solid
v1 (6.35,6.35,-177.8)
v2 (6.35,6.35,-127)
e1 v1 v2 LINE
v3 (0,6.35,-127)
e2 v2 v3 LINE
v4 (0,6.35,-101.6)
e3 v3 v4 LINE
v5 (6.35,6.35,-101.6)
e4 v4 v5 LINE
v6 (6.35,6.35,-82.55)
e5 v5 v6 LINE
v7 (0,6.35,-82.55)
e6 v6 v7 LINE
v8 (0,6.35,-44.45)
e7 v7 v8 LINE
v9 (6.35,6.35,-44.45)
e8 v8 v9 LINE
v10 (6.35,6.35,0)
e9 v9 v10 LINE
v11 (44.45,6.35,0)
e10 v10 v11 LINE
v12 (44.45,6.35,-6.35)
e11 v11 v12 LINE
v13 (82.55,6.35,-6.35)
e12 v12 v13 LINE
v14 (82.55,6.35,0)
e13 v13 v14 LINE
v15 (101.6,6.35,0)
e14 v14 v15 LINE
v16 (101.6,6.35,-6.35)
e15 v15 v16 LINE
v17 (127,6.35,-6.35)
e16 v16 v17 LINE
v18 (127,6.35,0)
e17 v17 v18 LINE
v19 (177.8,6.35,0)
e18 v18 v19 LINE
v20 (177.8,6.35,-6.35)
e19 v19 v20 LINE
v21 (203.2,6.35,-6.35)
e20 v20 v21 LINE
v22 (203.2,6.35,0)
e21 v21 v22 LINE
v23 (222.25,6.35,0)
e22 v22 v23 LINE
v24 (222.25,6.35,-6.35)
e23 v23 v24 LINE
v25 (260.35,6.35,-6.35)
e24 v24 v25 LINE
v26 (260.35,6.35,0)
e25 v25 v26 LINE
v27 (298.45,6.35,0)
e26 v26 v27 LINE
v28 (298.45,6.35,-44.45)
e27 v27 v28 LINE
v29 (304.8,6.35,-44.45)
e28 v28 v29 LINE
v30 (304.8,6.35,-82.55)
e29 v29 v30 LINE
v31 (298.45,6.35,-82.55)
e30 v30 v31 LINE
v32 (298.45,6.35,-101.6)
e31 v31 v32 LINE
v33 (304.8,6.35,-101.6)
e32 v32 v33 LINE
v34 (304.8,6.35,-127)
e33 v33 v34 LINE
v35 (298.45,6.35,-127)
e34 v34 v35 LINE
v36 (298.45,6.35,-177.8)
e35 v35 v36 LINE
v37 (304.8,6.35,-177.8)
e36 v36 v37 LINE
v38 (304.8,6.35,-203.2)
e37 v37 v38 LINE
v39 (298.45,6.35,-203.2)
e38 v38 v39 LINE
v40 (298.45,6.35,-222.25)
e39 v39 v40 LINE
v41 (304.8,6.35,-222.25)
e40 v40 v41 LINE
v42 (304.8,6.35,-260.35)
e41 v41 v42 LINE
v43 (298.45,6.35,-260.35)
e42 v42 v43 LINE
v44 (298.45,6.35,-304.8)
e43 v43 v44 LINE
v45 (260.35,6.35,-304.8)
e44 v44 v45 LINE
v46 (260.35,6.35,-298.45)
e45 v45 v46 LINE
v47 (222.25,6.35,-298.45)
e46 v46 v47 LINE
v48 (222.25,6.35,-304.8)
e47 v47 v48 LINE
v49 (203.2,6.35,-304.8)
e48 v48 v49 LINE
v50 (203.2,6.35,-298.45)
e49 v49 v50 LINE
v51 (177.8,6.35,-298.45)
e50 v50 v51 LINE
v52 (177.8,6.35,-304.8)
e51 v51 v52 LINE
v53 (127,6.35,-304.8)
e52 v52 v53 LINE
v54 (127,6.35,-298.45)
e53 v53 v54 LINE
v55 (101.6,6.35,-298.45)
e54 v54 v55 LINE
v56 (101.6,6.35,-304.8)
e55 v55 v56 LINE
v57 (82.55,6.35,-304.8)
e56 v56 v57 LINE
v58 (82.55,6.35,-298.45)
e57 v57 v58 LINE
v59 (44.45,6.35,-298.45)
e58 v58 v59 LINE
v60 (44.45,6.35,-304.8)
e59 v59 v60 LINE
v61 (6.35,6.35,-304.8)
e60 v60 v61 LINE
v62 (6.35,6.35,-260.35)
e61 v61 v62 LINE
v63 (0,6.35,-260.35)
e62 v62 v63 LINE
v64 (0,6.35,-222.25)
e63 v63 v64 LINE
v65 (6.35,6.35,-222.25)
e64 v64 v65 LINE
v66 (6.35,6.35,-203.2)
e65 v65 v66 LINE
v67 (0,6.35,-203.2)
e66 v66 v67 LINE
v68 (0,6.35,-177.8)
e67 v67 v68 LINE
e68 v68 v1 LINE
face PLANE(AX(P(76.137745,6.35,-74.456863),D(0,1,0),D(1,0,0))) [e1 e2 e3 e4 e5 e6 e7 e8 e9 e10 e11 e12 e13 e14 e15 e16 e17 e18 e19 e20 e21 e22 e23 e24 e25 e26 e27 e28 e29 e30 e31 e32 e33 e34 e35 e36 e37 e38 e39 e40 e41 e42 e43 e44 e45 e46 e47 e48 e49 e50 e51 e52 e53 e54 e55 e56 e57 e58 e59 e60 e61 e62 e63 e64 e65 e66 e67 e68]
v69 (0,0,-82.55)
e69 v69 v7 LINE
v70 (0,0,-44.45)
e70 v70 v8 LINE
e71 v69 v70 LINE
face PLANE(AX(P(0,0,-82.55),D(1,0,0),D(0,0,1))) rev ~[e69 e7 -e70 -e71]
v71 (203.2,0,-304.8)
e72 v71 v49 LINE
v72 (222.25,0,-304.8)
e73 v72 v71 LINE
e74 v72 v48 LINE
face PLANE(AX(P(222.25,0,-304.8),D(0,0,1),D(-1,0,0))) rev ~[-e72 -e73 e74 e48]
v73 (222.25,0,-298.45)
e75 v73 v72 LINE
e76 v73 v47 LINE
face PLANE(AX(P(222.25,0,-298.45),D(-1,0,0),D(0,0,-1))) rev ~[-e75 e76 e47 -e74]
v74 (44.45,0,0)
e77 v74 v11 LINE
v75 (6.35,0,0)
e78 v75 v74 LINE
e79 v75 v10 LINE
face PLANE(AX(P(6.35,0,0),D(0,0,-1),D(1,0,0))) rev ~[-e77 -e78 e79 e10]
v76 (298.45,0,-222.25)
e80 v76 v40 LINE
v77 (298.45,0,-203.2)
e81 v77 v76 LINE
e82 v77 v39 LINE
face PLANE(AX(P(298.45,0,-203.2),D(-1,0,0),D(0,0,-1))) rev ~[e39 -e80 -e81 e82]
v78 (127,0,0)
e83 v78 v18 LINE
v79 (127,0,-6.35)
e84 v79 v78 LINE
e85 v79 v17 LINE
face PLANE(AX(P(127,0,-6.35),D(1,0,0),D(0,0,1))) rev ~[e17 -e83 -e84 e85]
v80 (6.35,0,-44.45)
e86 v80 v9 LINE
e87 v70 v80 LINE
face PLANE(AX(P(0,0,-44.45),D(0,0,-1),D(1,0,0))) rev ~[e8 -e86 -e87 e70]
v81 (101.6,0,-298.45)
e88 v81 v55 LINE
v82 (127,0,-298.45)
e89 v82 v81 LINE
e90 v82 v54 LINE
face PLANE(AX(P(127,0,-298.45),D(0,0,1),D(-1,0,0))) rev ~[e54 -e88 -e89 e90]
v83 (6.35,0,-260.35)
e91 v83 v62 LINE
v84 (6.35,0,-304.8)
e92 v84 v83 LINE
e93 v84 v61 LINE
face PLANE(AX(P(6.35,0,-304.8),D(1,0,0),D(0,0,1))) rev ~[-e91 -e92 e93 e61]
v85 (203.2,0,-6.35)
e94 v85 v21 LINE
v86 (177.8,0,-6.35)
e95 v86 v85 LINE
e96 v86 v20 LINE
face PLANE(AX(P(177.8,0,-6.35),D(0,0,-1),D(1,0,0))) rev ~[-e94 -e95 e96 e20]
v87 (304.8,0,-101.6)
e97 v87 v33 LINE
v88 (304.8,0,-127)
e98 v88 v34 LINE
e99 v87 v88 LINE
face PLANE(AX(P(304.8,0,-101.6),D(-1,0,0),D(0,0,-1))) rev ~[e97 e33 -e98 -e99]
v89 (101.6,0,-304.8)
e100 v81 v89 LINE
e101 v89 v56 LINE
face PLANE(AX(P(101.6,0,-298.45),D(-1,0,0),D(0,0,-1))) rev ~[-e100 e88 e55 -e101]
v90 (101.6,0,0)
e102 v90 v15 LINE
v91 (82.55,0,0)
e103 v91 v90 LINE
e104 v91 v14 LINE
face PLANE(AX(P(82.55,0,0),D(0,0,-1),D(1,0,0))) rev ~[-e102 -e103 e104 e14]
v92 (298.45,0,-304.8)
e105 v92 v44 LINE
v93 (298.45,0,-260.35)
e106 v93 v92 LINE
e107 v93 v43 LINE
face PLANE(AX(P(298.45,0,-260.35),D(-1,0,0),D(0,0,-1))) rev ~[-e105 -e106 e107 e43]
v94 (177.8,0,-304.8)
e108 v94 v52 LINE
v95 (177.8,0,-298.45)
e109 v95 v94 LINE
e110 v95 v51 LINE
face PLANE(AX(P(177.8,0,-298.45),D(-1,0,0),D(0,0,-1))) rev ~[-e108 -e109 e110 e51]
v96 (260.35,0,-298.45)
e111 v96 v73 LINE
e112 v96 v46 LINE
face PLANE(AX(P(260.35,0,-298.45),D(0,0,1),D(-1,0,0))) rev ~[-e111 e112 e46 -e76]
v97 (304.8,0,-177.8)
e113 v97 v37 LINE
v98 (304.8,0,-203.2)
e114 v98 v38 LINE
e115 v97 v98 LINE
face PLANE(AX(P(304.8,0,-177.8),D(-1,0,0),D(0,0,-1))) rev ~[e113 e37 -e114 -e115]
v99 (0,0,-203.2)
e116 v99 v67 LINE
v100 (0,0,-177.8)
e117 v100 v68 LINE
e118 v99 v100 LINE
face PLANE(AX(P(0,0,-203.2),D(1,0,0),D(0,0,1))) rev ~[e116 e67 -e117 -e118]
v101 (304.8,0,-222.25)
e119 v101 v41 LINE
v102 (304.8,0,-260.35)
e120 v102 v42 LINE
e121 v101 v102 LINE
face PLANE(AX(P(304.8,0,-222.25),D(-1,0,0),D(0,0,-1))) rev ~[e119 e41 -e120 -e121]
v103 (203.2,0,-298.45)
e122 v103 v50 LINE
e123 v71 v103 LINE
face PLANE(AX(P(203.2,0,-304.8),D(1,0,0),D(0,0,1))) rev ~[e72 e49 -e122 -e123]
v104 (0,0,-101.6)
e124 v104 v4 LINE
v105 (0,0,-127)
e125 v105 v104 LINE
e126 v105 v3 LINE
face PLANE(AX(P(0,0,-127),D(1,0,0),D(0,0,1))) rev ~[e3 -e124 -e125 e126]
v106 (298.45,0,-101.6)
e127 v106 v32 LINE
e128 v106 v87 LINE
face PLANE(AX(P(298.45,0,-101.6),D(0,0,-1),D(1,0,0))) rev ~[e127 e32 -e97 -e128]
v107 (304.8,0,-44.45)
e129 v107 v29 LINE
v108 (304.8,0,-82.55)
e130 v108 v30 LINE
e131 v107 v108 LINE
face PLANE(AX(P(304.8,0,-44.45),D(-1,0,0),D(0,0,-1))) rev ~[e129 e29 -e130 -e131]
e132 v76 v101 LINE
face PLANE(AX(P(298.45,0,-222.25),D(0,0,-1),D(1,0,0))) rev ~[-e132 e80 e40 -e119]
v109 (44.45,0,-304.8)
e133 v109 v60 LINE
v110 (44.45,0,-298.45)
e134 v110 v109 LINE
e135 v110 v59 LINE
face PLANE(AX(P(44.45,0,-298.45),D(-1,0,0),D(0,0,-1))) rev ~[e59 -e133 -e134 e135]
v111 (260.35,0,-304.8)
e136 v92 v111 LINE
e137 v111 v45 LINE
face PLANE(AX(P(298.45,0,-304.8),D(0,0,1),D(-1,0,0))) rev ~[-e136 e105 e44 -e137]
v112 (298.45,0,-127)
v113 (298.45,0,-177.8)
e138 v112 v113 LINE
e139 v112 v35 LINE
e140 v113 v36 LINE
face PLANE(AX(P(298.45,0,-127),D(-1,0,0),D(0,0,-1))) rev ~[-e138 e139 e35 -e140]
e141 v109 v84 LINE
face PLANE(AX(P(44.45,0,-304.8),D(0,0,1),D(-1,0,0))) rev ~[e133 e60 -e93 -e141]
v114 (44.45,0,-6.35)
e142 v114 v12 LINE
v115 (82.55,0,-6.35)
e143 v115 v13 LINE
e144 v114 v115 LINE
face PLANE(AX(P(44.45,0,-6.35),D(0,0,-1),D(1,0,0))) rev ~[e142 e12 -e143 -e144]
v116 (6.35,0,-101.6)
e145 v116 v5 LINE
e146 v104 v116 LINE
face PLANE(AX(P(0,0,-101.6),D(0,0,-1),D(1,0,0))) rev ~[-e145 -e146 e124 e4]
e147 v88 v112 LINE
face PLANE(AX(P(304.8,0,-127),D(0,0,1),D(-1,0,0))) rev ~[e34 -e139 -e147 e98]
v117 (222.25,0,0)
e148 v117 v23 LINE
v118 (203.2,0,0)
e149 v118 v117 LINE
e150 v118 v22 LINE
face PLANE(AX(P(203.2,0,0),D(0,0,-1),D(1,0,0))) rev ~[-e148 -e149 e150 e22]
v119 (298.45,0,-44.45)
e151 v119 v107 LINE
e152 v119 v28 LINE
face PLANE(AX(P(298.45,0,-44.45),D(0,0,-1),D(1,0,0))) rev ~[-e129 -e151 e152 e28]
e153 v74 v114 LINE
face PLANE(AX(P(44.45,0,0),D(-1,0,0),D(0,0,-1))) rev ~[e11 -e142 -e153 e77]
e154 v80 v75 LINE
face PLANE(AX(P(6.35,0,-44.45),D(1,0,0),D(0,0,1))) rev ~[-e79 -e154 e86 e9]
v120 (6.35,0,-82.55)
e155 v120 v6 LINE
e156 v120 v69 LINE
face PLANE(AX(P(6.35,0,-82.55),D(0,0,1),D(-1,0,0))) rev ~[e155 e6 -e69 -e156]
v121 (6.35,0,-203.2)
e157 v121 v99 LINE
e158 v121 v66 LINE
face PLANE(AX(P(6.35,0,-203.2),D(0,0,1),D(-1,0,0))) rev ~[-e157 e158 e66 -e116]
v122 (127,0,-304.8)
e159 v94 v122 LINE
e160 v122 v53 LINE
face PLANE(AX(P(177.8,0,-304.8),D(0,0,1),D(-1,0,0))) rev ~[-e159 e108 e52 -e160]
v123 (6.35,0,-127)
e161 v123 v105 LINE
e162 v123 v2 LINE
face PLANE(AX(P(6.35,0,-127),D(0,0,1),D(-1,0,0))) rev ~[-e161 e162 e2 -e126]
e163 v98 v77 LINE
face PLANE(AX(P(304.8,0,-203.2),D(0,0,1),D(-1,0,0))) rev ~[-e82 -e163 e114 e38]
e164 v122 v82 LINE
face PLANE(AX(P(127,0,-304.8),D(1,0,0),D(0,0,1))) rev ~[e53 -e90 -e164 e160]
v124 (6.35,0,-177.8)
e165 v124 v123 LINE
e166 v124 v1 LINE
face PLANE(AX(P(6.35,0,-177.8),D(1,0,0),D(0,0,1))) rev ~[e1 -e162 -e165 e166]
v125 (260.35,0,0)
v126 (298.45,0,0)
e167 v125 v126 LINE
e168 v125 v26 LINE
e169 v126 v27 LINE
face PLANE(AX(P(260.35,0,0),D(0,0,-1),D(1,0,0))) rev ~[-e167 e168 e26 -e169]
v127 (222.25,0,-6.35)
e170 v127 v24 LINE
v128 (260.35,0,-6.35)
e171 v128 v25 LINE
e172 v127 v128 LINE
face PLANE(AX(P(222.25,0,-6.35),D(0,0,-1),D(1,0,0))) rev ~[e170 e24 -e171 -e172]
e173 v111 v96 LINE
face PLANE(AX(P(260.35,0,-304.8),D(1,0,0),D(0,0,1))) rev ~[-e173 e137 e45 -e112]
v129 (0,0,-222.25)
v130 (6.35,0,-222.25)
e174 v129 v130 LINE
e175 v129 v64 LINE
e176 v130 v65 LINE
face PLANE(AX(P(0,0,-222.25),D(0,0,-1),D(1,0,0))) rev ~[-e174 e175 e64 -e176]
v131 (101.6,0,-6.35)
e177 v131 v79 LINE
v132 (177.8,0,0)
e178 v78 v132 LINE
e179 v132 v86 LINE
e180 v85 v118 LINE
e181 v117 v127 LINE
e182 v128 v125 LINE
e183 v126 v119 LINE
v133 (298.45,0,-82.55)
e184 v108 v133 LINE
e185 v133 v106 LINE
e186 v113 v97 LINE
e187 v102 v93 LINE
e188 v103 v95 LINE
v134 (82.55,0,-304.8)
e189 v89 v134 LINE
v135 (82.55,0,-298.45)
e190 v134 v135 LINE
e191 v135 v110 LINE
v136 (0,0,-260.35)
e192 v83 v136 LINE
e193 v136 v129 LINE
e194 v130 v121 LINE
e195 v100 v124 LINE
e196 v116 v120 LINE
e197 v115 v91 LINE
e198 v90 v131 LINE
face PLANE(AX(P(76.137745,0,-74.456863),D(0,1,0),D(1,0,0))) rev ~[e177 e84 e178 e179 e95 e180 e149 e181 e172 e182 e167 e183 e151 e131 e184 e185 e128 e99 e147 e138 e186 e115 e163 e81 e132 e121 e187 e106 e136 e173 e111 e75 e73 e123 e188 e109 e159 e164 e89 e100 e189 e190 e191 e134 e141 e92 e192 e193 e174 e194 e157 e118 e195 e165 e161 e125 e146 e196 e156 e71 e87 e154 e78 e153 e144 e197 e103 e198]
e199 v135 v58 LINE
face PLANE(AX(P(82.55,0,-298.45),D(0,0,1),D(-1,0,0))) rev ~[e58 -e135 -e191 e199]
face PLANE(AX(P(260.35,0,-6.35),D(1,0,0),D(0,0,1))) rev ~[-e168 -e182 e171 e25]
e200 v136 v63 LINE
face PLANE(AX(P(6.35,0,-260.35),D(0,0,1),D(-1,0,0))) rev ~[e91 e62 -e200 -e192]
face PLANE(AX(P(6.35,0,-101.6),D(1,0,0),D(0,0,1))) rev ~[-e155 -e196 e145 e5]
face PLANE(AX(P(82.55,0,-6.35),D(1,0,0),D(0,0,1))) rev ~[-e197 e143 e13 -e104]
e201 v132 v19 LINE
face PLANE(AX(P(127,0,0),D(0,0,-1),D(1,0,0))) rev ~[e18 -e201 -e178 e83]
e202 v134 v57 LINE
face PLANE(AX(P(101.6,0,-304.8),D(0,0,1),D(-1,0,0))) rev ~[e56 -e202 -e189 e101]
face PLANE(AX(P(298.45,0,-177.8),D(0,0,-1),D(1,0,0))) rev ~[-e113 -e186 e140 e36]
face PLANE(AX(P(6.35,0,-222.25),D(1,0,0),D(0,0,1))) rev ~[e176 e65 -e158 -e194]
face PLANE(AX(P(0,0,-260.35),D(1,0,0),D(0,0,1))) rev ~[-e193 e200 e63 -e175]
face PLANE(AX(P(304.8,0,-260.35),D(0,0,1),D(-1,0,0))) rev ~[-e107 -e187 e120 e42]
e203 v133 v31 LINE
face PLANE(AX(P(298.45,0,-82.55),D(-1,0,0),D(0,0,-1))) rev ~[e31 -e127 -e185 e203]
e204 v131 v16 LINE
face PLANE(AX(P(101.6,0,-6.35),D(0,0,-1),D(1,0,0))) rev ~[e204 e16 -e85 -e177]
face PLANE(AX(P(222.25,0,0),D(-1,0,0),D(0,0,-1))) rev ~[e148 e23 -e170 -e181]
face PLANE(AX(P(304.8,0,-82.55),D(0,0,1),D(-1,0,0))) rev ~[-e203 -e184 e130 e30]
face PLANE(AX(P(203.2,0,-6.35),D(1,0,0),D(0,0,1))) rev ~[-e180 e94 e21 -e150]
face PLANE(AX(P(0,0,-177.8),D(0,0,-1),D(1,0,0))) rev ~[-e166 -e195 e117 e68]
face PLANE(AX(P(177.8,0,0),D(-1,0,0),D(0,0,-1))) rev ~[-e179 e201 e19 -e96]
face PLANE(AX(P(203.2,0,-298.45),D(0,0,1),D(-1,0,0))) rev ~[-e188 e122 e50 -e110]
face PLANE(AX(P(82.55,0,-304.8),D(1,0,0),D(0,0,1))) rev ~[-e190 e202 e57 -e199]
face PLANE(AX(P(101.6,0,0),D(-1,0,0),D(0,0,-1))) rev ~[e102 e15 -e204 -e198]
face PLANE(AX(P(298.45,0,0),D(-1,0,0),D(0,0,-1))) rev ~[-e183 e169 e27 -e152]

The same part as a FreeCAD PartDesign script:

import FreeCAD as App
import Part
import Sketcher
from FreeCAD import Vector
Q = App.Units.Quantity


def add_polygon(sketch, points):
    """Adds a closed chain of lines whose ends are joined by coincident constraints."""
    first, n = sketch.GeometryCount, len(points)
    for a, b in zip(points, points[1:] + points[:1]):
        sketch.addGeometry(Part.LineSegment(App.Vector(*a, 0), App.Vector(*b, 0)), False)
    for i in range(n):
        sketch.addConstraint(Sketcher.Constraint("Coincident", first + i, 2, first + (i + 1) % n, 1))

doc = App.newDocument("Part")
body = doc.addObject("PartDesign::Body", "Body")

# Sketch on XZ plane
sketch1 = body.newObject("Sketcher::SketchObject", "Sketch")
sketch1.AttachmentSupport = (doc.getObject("XZ_Plane"), [""])
sketch1.MapMode = "FlatFace"
add_polygon(sketch1, [(6, -127), (0, -127), (0, -102), (6, -102), (6, -83), (0, -83), (0, -44), (6, -44), (6, 0), (44, 0), (44, -6), (83, -6), (83, 0), (102, 0), (102, -6), (127, -6), (127, 0), (178, 0), (178, -6), (203, -6), (203, 0), (222, 0), (222, -6), (260, -6), (260, 0), (298, 0), (298, -44), (305, -44), (305, -83), (298, -83), (298, -102), (305, -102), (305, -127), (298, -127), (298, -178), (305, -178), (305, -203), (298, -203), (298, -222), (305, -222), (305, -260), (298, -260), (298, -305), (260, -305), (260, -298), (222, -298), (222, -305), (203, -305), (203, -298), (178, -298), (178, -305), (127, -305), (127, -298), (102, -298), (102, -305), (83, -305), (83, -298), (44, -298), (44, -305), (6, -305), (6, -260), (0, -260), (0, -222), (6, -222), (6, -203), (0, -203), (0, -178), (6, -178)])  # lines 0-67
sketch1.addConstraint(Sketcher.Constraint("Horizontal", 0))
sketch1.addConstraint(Sketcher.Constraint("Vertical", 1))
sketch1.addConstraint(Sketcher.Constraint("Horizontal", 2))
sketch1.addConstraint(Sketcher.Constraint("Vertical", 3))
sketch1.addConstraint(Sketcher.Constraint("Horizontal", 4))
sketch1.addConstraint(Sketcher.Constraint("Vertical", 5))
sketch1.addConstraint(Sketcher.Constraint("Horizontal", 6))
sketch1.addConstraint(Sketcher.Constraint("Vertical", 7))
sketch1.addConstraint(Sketcher.Constraint("Horizontal", 8))
sketch1.addConstraint(Sketcher.Constraint("Vertical", 9))
sketch1.addConstraint(Sketcher.Constraint("Horizontal", 10))
sketch1.addConstraint(Sketcher.Constraint("Vertical", 11))
sketch1.addConstraint(Sketcher.Constraint("Horizontal", 12))
sketch1.addConstraint(Sketcher.Constraint("Vertical", 13))
sketch1.addConstraint(Sketcher.Constraint("Horizontal", 14))
sketch1.addConstraint(Sketcher.Constraint("Vertical", 15))
sketch1.addConstraint(Sketcher.Constraint("Horizontal", 16))
sketch1.addConstraint(Sketcher.Constraint("Vertical", 17))
sketch1.addConstraint(Sketcher.Constraint("Horizontal", 18))
sketch1.addConstraint(Sketcher.Constraint("Vertical", 19))
sketch1.addConstraint(Sketcher.Constraint("Horizontal", 20))
sketch1.addConstraint(Sketcher.Constraint("Vertical", 21))
sketch1.addConstraint(Sketcher.Constraint("Horizontal", 22))
sketch1.addConstraint(Sketcher.Constraint("Vertical", 23))
sketch1.addConstraint(Sketcher.Constraint("Horizontal", 24))
sketch1.addConstraint(Sketcher.Constraint("Vertical", 25))
sketch1.addConstraint(Sketcher.Constraint("Horizontal", 26))
sketch1.addConstraint(Sketcher.Constraint("Vertical", 27))
sketch1.addConstraint(Sketcher.Constraint("Horizontal", 28))
sketch1.addConstraint(Sketcher.Constraint("Vertical", 29))
sketch1.addConstraint(Sketcher.Constraint("Horizontal", 30))
sketch1.addConstraint(Sketcher.Constraint("Vertical", 31))
sketch1.addConstraint(Sketcher.Constraint("Horizontal", 32))
sketch1.addConstraint(Sketcher.Constraint("Vertical", 33))
sketch1.addConstraint(Sketcher.Constraint("Horizontal", 34))
sketch1.addConstraint(Sketcher.Constraint("Vertical", 35))
sketch1.addConstraint(Sketcher.Constraint("Horizontal", 36))
sketch1.addConstraint(Sketcher.Constraint("Vertical", 37))
sketch1.addConstraint(Sketcher.Constraint("Horizontal", 38))
sketch1.addConstraint(Sketcher.Constraint("Vertical", 39))
sketch1.addConstraint(Sketcher.Constraint("Horizontal", 40))
sketch1.addConstraint(Sketcher.Constraint("Vertical", 41))
sketch1.addConstraint(Sketcher.Constraint("Horizontal", 42))
sketch1.addConstraint(Sketcher.Constraint("Vertical", 43))
sketch1.addConstraint(Sketcher.Constraint("Horizontal", 44))
sketch1.addConstraint(Sketcher.Constraint("Vertical", 45))
sketch1.addConstraint(Sketcher.Constraint("Horizontal", 46))
sketch1.addConstraint(Sketcher.Constraint("Vertical", 47))
sketch1.addConstraint(Sketcher.Constraint("Horizontal", 48))
sketch1.addConstraint(Sketcher.Constraint("Vertical", 49))
sketch1.addConstraint(Sketcher.Constraint("Horizontal", 50))
sketch1.addConstraint(Sketcher.Constraint("Vertical", 51))
sketch1.addConstraint(Sketcher.Constraint("Horizontal", 52))
sketch1.addConstraint(Sketcher.Constraint("Vertical", 53))
sketch1.addConstraint(Sketcher.Constraint("Horizontal", 54))
sketch1.addConstraint(Sketcher.Constraint("Vertical", 55))
sketch1.addConstraint(Sketcher.Constraint("Horizontal", 56))
sketch1.addConstraint(Sketcher.Constraint("Vertical", 57))
sketch1.addConstraint(Sketcher.Constraint("Horizontal", 58))
sketch1.addConstraint(Sketcher.Constraint("Vertical", 59))
sketch1.addConstraint(Sketcher.Constraint("Horizontal", 60))
sketch1.addConstraint(Sketcher.Constraint("Vertical", 61))
sketch1.addConstraint(Sketcher.Constraint("Horizontal", 62))
sketch1.addConstraint(Sketcher.Constraint("Vertical", 63))
sketch1.addConstraint(Sketcher.Constraint("Horizontal", 64))
sketch1.addConstraint(Sketcher.Constraint("Vertical", 65))
sketch1.addConstraint(Sketcher.Constraint("Horizontal", 66))
sketch1.addConstraint(Sketcher.Constraint("Vertical", 67))
sketch1.addConstraint(Sketcher.Constraint("PointOnObject", 0, 2, -2))
sketch1.addConstraint(Sketcher.Constraint("PointOnObject", 4, 2, -2))
sketch1.addConstraint(Sketcher.Constraint("PointOnObject", 7, 2, -1))
sketch1.addConstraint(Sketcher.Constraint("PointOnObject", 11, 2, -1))
sketch1.addConstraint(Sketcher.Constraint("PointOnObject", 15, 2, -1))
sketch1.addConstraint(Sketcher.Constraint("PointOnObject", 19, 2, -1))
sketch1.addConstraint(Sketcher.Constraint("PointOnObject", 23, 2, -1))
sketch1.addConstraint(Sketcher.Constraint("PointOnObject", 60, 2, -2))
sketch1.addConstraint(Sketcher.Constraint("PointOnObject", 64, 2, -2))
sketch1.addConstraint(Sketcher.Constraint("Horizontal", 10, 2, 13, 2))
sketch1.addConstraint(Sketcher.Constraint("Horizontal", 14, 2, 17, 2))
sketch1.addConstraint(Sketcher.Constraint("Horizontal", 18, 2, 21, 2))
sketch1.addConstraint(Sketcher.Constraint("Horizontal", 6, 2, 25, 2))
sketch1.addConstraint(Sketcher.Constraint("Horizontal", 4, 2, 27, 2))
sketch1.addConstraint(Sketcher.Constraint("Horizontal", 2, 2, 29, 2))
sketch1.addConstraint(Sketcher.Constraint("Horizontal", 0, 2, 31, 2))
sketch1.addConstraint(Sketcher.Constraint("Horizontal", 42, 2, 45, 2))
sketch1.addConstraint(Sketcher.Constraint("Horizontal", 44, 2, 47, 2))
sketch1.addConstraint(Sketcher.Constraint("Horizontal", 46, 2, 49, 2))
sketch1.addConstraint(Sketcher.Constraint("Horizontal", 48, 2, 51, 2))
sketch1.addConstraint(Sketcher.Constraint("Horizontal", 50, 2, 53, 2))
sketch1.addConstraint(Sketcher.Constraint("Horizontal", 52, 2, 55, 2))
sketch1.addConstraint(Sketcher.Constraint("Horizontal", 54, 2, 57, 2))
sketch1.addConstraint(Sketcher.Constraint("Horizontal", 40, 2, 59, 2))
sketch1.addConstraint(Sketcher.Constraint("Horizontal", 38, 2, 61, 2))
sketch1.addConstraint(Sketcher.Constraint("Horizontal", 36, 2, 63, 2))
sketch1.addConstraint(Sketcher.Constraint("Horizontal", 34, 2, 65, 2))
sketch1.addConstraint(Sketcher.Constraint("Vertical", 3, 2, 6, 2))
sketch1.addConstraint(Sketcher.Constraint("Vertical", 25, 2, 28, 2))
sketch1.addConstraint(Sketcher.Constraint("Vertical", 27, 2, 30, 2))
sketch1.addConstraint(Sketcher.Constraint("Vertical", 29, 2, 32, 2))
sketch1.addConstraint(Sketcher.Constraint("Vertical", 31, 2, 34, 2))
sketch1.addConstraint(Sketcher.Constraint("Vertical", 33, 2, 36, 2))
sketch1.addConstraint(Sketcher.Constraint("Vertical", 35, 2, 38, 2))
sketch1.addConstraint(Sketcher.Constraint("Vertical", 37, 2, 40, 2))
sketch1.addConstraint(Sketcher.Constraint("Vertical", 23, 2, 42, 2))
sketch1.addConstraint(Sketcher.Constraint("Vertical", 21, 2, 44, 2))
sketch1.addConstraint(Sketcher.Constraint("Vertical", 19, 2, 46, 2))
sketch1.addConstraint(Sketcher.Constraint("Vertical", 17, 2, 48, 2))
sketch1.addConstraint(Sketcher.Constraint("Vertical", 15, 2, 50, 2))
sketch1.addConstraint(Sketcher.Constraint("Vertical", 13, 2, 52, 2))
sketch1.addConstraint(Sketcher.Constraint("Vertical", 11, 2, 54, 2))
sketch1.addConstraint(Sketcher.Constraint("Vertical", 9, 2, 56, 2))
sketch1.addConstraint(Sketcher.Constraint("Vertical", 7, 2, 58, 2))
sketch1.addConstraint(Sketcher.Constraint("Vertical", 59, 2, 62, 2))
sketch1.addConstraint(Sketcher.Constraint("Vertical", 63, 2, 66, 2))
sketch1.addConstraint(Sketcher.Constraint("Equal", 8, 10))
sketch1.addConstraint(Sketcher.Constraint("Equal", 14, 18))
sketch1.addConstraint(Sketcher.Constraint("Equal", 12, 20))
sketch1.addConstraint(Sketcher.Constraint("Equal", 10, 22))
sketch1.addConstraint(Sketcher.Constraint("Equal", 22, 24))
sketch1.addConstraint(Sketcher.Constraint("Equal", 6, 26))
sketch1.addConstraint(Sketcher.Constraint("Equal", 52, 1))
sketch1.addConstraint(Sketcher.Constraint("Equal", 54, 3))
sketch1.addConstraint(Sketcher.Constraint("Equal", 58, 5))
sketch1.addConstraint(Sketcher.Constraint("Equal", 66, 9))
sketch1.addConstraint(Sketcher.Constraint("Equal", 50, 33))
sketch1.addConstraint(Sketcher.Constraint("Equal", 31, 35))
sketch1.addConstraint(Sketcher.Constraint("Equal", 29, 37))
sketch1.addConstraint(Sketcher.Constraint("Equal", 27, 39))
sketch1.addConstraint(Sketcher.Constraint("Equal", 25, 41))
sketch1.addConstraint(Sketcher.Constraint("Equal", 23, 43))
sketch1.addConstraint(Sketcher.Constraint("DistanceX", 14, 1, 14, 2, Q("1 in")))
sketch1.addConstraint(Sketcher.Constraint("DistanceX", 16, 1, 16, 2, Q("2 in")))
sketch1.addConstraint(Sketcher.Constraint("DistanceX", 8, 1, 8, 2, Q("1.5 in")))
sketch1.addConstraint(Sketcher.Constraint("DistanceY", 0, 2, -1, 1, Q("5 in")))
sketch1.addConstraint(Sketcher.Constraint("DistanceX", -1, 1, 12, 2, Q("4 in")))
sketch1.addConstraint(Sketcher.Constraint("DistanceX", 0, 2, 0, 1, Q("0.25 in")))
pad1 = body.newObject("PartDesign::Pad", "Pad")
pad1.Profile = sketch1
pad1.Length = Q("0.25 in")
pad1.Reversed = True

doc.recompute()
